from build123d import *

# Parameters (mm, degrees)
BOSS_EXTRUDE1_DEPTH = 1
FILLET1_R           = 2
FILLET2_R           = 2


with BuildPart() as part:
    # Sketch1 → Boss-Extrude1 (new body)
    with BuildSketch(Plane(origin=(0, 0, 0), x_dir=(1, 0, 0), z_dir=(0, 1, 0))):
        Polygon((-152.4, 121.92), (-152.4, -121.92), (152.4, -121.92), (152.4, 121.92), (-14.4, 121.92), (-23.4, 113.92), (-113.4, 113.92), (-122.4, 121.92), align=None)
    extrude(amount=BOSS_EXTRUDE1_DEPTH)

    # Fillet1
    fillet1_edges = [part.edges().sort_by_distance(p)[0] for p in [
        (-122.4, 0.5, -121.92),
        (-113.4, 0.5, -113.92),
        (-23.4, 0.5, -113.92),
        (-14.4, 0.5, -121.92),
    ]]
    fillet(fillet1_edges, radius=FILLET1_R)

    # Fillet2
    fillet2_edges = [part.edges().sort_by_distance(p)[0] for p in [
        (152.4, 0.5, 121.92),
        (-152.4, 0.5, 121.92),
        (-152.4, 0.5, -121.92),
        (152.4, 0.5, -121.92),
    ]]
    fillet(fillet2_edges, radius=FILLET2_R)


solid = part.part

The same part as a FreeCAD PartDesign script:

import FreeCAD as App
import Part
import Sketcher

V = App.Vector
Q = App.Units.Quantity


def edges_at(feature, points):
    """Names of the edges that pass closest to the given points."""
    edges = feature.Shape.Edges
    near = lambda p: min(range(len(edges)), key=lambda i: edges[i].distToShape(Part.Vertex(*p))[0])
    return sorted({f"Edge{near(p) + 1}" for p in points})

doc = App.newDocument("Part")
body = doc.addObject("PartDesign::Body", "Body")

sketch1 = body.newObject("Sketcher::SketchObject", "Sketch")
sketch1.AttachmentSupport = (doc.getObject("XZ_Plane"), [""])
sketch1.MapMode = "FlatFace"
sketch1.addGeometry([
    Part.LineSegment(V(-152, -122, 0), V(-152, 122, 0)),
    Part.LineSegment(V(-152, 122, 0), V(152, 122, 0)),
    Part.LineSegment(V(152, 122, 0), V(152, -122, 0)),
    Part.LineSegment(V(152, -122, 0), V(-14, -122, 0)),
    Part.LineSegment(V(-14, -122, 0), V(-23, -114, 0)),
    Part.LineSegment(V(-23, -114, 0), V(-113, -114, 0)),
    Part.LineSegment(V(-113, -114, 0), V(-122, -122, 0)),
    Part.LineSegment(V(-122, -122, 0), V(-152, -122, 0)),
], False)
sketch1.addConstraint([
    Sketcher.Constraint("Coincident", 0, 2, 1, 1),
    Sketcher.Constraint("Coincident", 1, 2, 2, 1),
    Sketcher.Constraint("Coincident", 2, 2, 3, 1),
    Sketcher.Constraint("Coincident", 3, 2, 4, 1),
    Sketcher.Constraint("Coincident", 4, 2, 5, 1),
    Sketcher.Constraint("Coincident", 5, 2, 6, 1),
    Sketcher.Constraint("Coincident", 6, 2, 7, 1),
    Sketcher.Constraint("Coincident", 7, 2, 0, 1),
    Sketcher.Constraint("Vertical", 0),
    Sketcher.Constraint("Horizontal", 1),
    Sketcher.Constraint("Vertical", 2),
    Sketcher.Constraint("Horizontal", 3),
    Sketcher.Constraint("Horizontal", 5),
    Sketcher.Constraint("Horizontal", 7),
    Sketcher.Constraint("Symmetric", 0, 2, 2, 2, -1, 1),
    Sketcher.Constraint("Horizontal", 3, 2, 6, 2),
    Sketcher.Constraint("Equal", 4, 6),
    Sketcher.Constraint("DistanceX", 5, 2, 5, 1, Q("90 mm")),
    Sketcher.Constraint("DistanceX", 7, 2, 7, 1, Q("30 mm")),
    Sketcher.Constraint("DistanceX", 1, 1, 1, 2, Q("304.8 mm")),
    Sketcher.Constraint("DistanceX", 3, 2, 3, 1, Q("166.8 mm")),
    Sketcher.Constraint("DistanceY", 3, 2, 4, 2, Q("8 mm")),
    Sketcher.Constraint("DistanceY", 0, 1, 0, 2, Q("243.84 mm")),
])
pad1 = body.newObject("PartDesign::Pad", "Pad")
pad1.Profile = sketch1
pad1.Length = 1
pad1.Reversed = True
doc.recompute()

fillet = body.newObject("PartDesign::Fillet", "Fillet")
fillet.Base = (pad1, edges_at(pad1, [
    (-122.4, 0.5, -121.92),
    (-113.4, 0.5, -113.92),
    (-23.4, 0.5, -113.92),
    (-14.4, 0.5, -121.92),
]))
fillet.Radius = 2
doc.recompute()

fillet2 = body.newObject("PartDesign::Fillet", "Fillet001")
fillet2.Base = (fillet, edges_at(fillet, [
    (152.4, 0.5, 121.92),
    (-152.4, 0.5, 121.92),
    (-152.4, 0.5, -121.92),
    (152.4, 0.5, -121.92),
]))
fillet2.Radius = 2

doc.recompute()
